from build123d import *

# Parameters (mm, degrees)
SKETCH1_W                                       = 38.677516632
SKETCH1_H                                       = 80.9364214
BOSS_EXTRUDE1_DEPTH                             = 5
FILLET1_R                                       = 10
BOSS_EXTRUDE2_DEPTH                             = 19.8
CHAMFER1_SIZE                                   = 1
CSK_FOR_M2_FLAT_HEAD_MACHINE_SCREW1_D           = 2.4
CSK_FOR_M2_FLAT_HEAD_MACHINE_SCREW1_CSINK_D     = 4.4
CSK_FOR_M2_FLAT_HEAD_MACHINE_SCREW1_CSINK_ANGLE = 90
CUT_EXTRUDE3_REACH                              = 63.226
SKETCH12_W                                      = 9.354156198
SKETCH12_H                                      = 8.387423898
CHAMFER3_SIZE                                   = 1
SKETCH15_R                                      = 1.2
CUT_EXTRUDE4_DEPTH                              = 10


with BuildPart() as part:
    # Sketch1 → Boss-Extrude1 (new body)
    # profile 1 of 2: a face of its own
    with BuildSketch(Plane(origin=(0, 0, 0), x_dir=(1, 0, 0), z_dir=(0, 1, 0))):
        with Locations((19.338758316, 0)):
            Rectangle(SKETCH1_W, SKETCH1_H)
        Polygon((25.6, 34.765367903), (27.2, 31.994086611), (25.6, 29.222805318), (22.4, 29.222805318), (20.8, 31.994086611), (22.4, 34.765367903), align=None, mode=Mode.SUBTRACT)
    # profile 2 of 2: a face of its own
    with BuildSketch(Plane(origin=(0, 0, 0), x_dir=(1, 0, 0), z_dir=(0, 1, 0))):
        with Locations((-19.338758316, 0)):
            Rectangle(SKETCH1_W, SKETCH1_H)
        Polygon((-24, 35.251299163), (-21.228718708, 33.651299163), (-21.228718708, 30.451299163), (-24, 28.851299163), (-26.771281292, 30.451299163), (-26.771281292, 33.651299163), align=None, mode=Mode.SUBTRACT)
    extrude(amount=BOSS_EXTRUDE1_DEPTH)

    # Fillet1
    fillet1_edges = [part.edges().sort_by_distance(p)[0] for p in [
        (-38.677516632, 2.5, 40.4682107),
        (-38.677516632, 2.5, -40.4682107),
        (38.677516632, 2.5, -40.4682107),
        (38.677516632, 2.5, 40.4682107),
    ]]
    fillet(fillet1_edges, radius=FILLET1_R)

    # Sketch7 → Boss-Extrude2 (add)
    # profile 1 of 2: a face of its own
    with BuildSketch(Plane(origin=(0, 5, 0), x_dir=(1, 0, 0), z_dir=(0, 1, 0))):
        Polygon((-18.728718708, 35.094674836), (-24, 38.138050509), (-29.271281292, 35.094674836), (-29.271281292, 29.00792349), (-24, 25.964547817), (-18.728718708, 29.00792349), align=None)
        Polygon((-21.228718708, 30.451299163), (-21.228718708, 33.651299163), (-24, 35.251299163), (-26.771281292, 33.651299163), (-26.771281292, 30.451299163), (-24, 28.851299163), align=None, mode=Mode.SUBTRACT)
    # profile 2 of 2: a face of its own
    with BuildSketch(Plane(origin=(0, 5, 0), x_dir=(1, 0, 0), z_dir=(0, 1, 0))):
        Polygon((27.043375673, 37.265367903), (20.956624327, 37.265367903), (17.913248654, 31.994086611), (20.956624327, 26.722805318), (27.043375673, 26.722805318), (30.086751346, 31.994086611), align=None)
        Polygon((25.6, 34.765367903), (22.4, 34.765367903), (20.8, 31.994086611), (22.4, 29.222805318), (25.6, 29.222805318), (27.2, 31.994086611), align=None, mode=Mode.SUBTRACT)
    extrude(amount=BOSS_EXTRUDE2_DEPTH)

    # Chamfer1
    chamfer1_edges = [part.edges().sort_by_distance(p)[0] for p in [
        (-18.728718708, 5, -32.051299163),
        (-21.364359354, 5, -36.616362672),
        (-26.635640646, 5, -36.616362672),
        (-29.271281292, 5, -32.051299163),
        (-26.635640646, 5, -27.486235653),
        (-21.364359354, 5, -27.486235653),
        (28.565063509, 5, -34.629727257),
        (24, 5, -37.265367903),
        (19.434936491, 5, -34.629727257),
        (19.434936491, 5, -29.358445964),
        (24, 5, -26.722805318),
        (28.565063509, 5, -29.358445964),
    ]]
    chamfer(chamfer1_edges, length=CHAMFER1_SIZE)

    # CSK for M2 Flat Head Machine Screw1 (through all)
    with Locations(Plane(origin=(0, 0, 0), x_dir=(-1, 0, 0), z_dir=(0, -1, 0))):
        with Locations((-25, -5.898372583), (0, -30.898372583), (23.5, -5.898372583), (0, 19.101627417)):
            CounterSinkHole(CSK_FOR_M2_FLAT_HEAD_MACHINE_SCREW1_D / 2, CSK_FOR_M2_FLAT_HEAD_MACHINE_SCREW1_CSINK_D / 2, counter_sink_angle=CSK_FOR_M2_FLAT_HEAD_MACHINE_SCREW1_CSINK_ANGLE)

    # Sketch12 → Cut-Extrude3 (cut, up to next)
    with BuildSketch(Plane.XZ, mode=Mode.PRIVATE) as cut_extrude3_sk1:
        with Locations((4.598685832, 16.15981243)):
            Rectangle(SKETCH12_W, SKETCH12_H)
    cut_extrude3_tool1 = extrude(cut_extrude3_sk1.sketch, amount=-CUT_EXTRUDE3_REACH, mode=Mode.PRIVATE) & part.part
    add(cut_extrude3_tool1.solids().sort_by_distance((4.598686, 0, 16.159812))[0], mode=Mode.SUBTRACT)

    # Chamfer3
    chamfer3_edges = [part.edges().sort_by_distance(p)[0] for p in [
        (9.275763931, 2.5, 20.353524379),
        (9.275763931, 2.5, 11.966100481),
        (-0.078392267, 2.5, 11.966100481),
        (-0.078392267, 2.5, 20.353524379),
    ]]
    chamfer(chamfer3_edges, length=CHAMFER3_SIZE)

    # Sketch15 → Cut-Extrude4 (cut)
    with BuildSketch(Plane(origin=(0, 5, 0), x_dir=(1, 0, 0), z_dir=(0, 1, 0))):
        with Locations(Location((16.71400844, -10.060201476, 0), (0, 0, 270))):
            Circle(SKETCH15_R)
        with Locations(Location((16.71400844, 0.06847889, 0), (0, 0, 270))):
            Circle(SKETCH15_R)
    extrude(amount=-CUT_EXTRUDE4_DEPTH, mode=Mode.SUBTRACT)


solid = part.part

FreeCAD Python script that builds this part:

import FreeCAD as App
import Part
import Sketcher

V = App.Vector
Q = App.Units.Quantity


def edges_at(feature, points):
    """Names of the edges that pass closest to the given points."""
    edges = feature.Shape.Edges
    near = lambda p: min(range(len(edges)), key=lambda i: edges[i].distToShape(Part.Vertex(*p))[0])
    return sorted({f"Edge{near(p) + 1}" for p in points})


def add_polygon(sketch, points):
    """Adds a closed chain of lines whose ends are joined by coincident constraints."""
    first, n = sketch.GeometryCount, len(points)
    for a, b in zip(points, points[1:] + points[:1]):
        sketch.addGeometry(Part.LineSegment(App.Vector(*a, 0), App.Vector(*b, 0)), False)
    for i in range(n):
        sketch.addConstraint(Sketcher.Constraint("Coincident", first + i, 2, first + (i + 1) % n, 1))

doc = App.newDocument("Part")
body = doc.addObject("PartDesign::Body", "Body")

# Sketch on XZ plane
sketch1 = body.newObject("Sketcher::SketchObject", "Sketch")
sketch1.AttachmentSupport = (doc.getObject("XZ_Plane"), [""])
sketch1.MapMode = "FlatFace"
add_polygon(sketch1, [(38.7, 40.5), (38.7, -40.5), (-38.7, -40.5), (-38.7, 40.5)])  # lines 0-3
add_polygon(sketch1, [(22.4, -34.8), (25.6, -34.8), (27.2, -32), (25.6, -29.2), (22.4, -29.2), (20.8, -32)])  # lines 4-9
add_polygon(sketch1, [(-24, -35.3), (-21.2, -33.7), (-21.2, -30.5), (-24, -28.9), (-26.8, -30.5), (-26.8, -33.7)])  # lines 10-15
sketch1.addConstraint(Sketcher.Constraint("Vertical", 0))
sketch1.addConstraint(Sketcher.Constraint("Horizontal", 1))
sketch1.addConstraint(Sketcher.Constraint("Vertical", 2))
sketch1.addConstraint(Sketcher.Constraint("Horizontal", 3))
sketch1.addConstraint(Sketcher.Constraint("Horizontal", 4))
sketch1.addConstraint(Sketcher.Constraint("Horizontal", 7))
sketch1.addConstraint(Sketcher.Constraint("Vertical", 11))
sketch1.addConstraint(Sketcher.Constraint("Vertical", 14))
sketch1.addConstraint(Sketcher.Constraint("Symmetric", 0, 2, 2, 2, -1, 1))
sketch1.addConstraint(Sketcher.Constraint("Parallel", 5, 8))
sketch1.addConstraint(Sketcher.Constraint("Parallel", 6, 9))
sketch1.addConstraint(Sketcher.Constraint("Perpendicular", 9, 10))
sketch1.addConstraint(Sketcher.Constraint("Perpendicular", 8, 12))
sketch1.addConstraint(Sketcher.Constraint("Parallel", 10, 13))
sketch1.addConstraint(Sketcher.Constraint("Parallel", 12, 15))
sketch1.addConstraint(Sketcher.Constraint("Horizontal", 5, 2, 8, 2))
sketch1.addConstraint(Sketcher.Constraint("Horizontal", 11, 2, 13, 2))
sketch1.addConstraint(Sketcher.Constraint("Horizontal", 10, 2, 14, 2))
sketch1.addConstraint(Sketcher.Constraint("Vertical", 4, 2, 6, 2))
sketch1.addConstraint(Sketcher.Constraint("Vertical", 7, 2, 9, 2))
sketch1.addConstraint(Sketcher.Constraint("Equal", 7, 11))
sketch1.addConstraint(Sketcher.Constraint("Equal", 9, 10))
sketch1.addConstraint(Sketcher.Constraint("Angle", 5, Q("60 deg")))
sketch1.addConstraint(Sketcher.Constraint("DistanceX", 4, 1, 4, 2, Q("3.2 mm")))
sketch1.addConstraint(Sketcher.Constraint("DistanceX", 12, 2, -1, 1, Q("24 mm")))
sketch1.addConstraint(Sketcher.Constraint("Distance", 5, Q("3.2 mm")))
sketch1.addConstraint(Sketcher.Constraint("DistanceX", -1, 1, 4, 2, Q("25.6 mm")))
sketch1.addConstraint(Sketcher.Constraint("DistanceY", 0, 2, 0, 1, Q("80.936421 mm")))
sketch1.addConstraint(Sketcher.Constraint("DistanceY", 10, 2, -1, 1, Q("33.651299 mm")))
sketch1.addConstraint(Sketcher.Constraint("DistanceX", 1, 2, 1, 1, Q("77.355033 mm")))
sketch1.addConstraint(Sketcher.Constraint("DistanceY", 4, 2, 3, 2, Q("75.233579 mm")))
pad1 = body.newObject("PartDesign::Pad", "Pad")
pad1.Profile = sketch1
pad1.Length = 5
pad1.Reversed = True
doc.recompute()

fillet = body.newObject("PartDesign::Fillet", "Fillet")
fillet.Base = (pad1, edges_at(pad1, [
    (-38.678, 2.5, 40.468),
    (-38.678, 2.5, -40.468),
    (38.678, 2.5, -40.468),
    (38.678, 2.5, 40.468),
]))
fillet.Radius = 10

# Sketch on XZ plane
sketch2 = body.newObject("Sketcher::SketchObject", "Sketch001")
sketch2.AttachmentSupport = (doc.getObject("XZ_Plane"), [""])
sketch2.MapMode = "FlatFace"
sketch2.AttachmentOffset = App.Placement(V(0, 0, -5), App.Rotation())
add_polygon(sketch2, [(-18.7, -35.1), (-24, -38.1), (-29.3, -35.1), (-29.3, -29), (-24, -26), (-18.7, -29)])  # lines 0-5
add_polygon(sketch2, [(-21.2, -33.7), (-21.2, -30.5), (-24, -28.9), (-26.8, -30.5), (-26.8, -33.7), (-24, -35.3)])  # lines 6-11
add_polygon(sketch2, [(27, -37.3), (21, -37.3), (17.9, -32), (21, -26.7), (27, -26.7), (30.1, -32)])  # lines 12-17
add_polygon(sketch2, [(22.4, -34.8), (25.6, -34.8), (27.2, -32), (25.6, -29.2), (22.4, -29.2), (20.8, -32)])  # lines 18-23
sketch2.addConstraint(Sketcher.Constraint("Vertical", 2))
sketch2.addConstraint(Sketcher.Constraint("Vertical", 5))
sketch2.addConstraint(Sketcher.Constraint("Vertical", 6))
sketch2.addConstraint(Sketcher.Constraint("Vertical", 9))
sketch2.addConstraint(Sketcher.Constraint("Horizontal", 12))
sketch2.addConstraint(Sketcher.Constraint("Horizontal", 15))
sketch2.addConstraint(Sketcher.Constraint("Horizontal", 18))
sketch2.addConstraint(Sketcher.Constraint("Horizontal", 21))
sketch2.addConstraint(Sketcher.Constraint("Parallel", 0, 3))
sketch2.addConstraint(Sketcher.Constraint("Parallel", 1, 4))
sketch2.addConstraint(Sketcher.Constraint("Parallel", 4, 7))
sketch2.addConstraint(Sketcher.Constraint("Parallel", 3, 8))
sketch2.addConstraint(Sketcher.Constraint("Parallel", 7, 10))
sketch2.addConstraint(Sketcher.Constraint("Parallel", 8, 11))
sketch2.addConstraint(Sketcher.Constraint("Perpendicular", 11, 13))
sketch2.addConstraint(Sketcher.Constraint("Perpendicular", 10, 14))
sketch2.addConstraint(Sketcher.Constraint("Parallel", 13, 16))
sketch2.addConstraint(Sketcher.Constraint("Parallel", 14, 17))
sketch2.addConstraint(Sketcher.Constraint("Parallel", 17, 19))
sketch2.addConstraint(Sketcher.Constraint("Parallel", 16, 20))
sketch2.addConstraint(Sketcher.Constraint("Parallel", 19, 22))
sketch2.addConstraint(Sketcher.Constraint("Parallel", 20, 23))
sketch2.addConstraint(Sketcher.Constraint("Horizontal", 2, 2, 4, 2))
sketch2.addConstraint(Sketcher.Constraint("Horizontal", 1, 2, 5, 2))
sketch2.addConstraint(Sketcher.Constraint("Horizontal", 6, 2, 8, 2))
sketch2.addConstraint(Sketcher.Constraint("Horizontal", 9, 2, 11, 2))
sketch2.addConstraint(Sketcher.Constraint("Horizontal", 13, 2, 16, 2))
sketch2.addConstraint(Sketcher.Constraint("Horizontal", 16, 2, 19, 2))
sketch2.addConstraint(Sketcher.Constraint("Horizontal", 19, 2, 22, 2))
sketch2.addConstraint(Sketcher.Constraint("Vertical", 0, 2, 3, 2))
sketch2.addConstraint(Sketcher.Constraint("Vertical", 3, 2, 7, 2))
sketch2.addConstraint(Sketcher.Constraint("Vertical", 12, 2, 14, 2))
sketch2.addConstraint(Sketcher.Constraint("Vertical", 18, 2, 20, 2))
sketch2.addConstraint(Sketcher.Constraint("Equal", 15, 2))
sketch2.addConstraint(Sketcher.Constraint("Equal", 21, 6))
sketch2.addConstraint(Sketcher.Constraint("Equal", 4, 13))
sketch2.addConstraint(Sketcher.Constraint("Equal", 11, 19))
sketch2.addConstraint(Sketcher.Constraint("Angle", 0, Q("-150 deg")))
sketch2.addConstraint(Sketcher.Constraint("DistanceX", 18, 1, 18, 2, Q("3.2 mm")))
sketch2.addConstraint(Sketcher.Constraint("DistanceX", 0, 2, -1, 1, Q("24 mm")))
sketch2.addConstraint(Sketcher.Constraint("Distance", 7, Q("3.2 mm")))
sketch2.addConstraint(Sketcher.Constraint("DistanceX", -1, 1, 18, 2, Q("25.6 mm")))
sketch2.addConstraint(Sketcher.Constraint("DistanceX", 6, 2, 4, 2, Q("2.5 mm")))
sketch2.addConstraint(Sketcher.Constraint("DistanceX", 12, 2, 12, 1, Q("6.086751 mm")))
sketch2.addConstraint(Sketcher.Constraint("DistanceY", 6, 2, -1, 1, Q("30.451299 mm")))
sketch2.addConstraint(Sketcher.Constraint("DistanceY", 0, 2, -1, 1, Q("38.138051 mm")))
sketch2.addConstraint(Sketcher.Constraint("DistanceX", -1, 1, 13, 2, Q("17.913249 mm")))
sketch2.addConstraint(Sketcher.Constraint("DistanceY", 12, 2, 11, 2, Q("3.614069 mm")))
pad2 = body.newObject("PartDesign::Pad", "Pad001")
pad2.Profile = sketch2
pad2.Length = 19.8
pad2.Reversed = True
doc.recompute()

chamfer = body.newObject("PartDesign::Chamfer", "Chamfer")
chamfer.Base = (pad2, edges_at(pad2, [
    (-18.729, 5, -32.051),
    (-21.364, 5, -36.616),
    (-26.636, 5, -36.616),
    (-29.271, 5, -32.051),
    (-26.636, 5, -27.486),
    (-21.364, 5, -27.486),
    (28.565, 5, -34.63),
    (24, 5, -37.265),
    (19.435, 5, -34.63),
    (19.435, 5, -29.358),
    (24, 5, -26.723),
    (28.565, 5, -29.358),
]))
chamfer.Size = 1

# Sketch on XZ plane
sketch3 = body.newObject("Sketcher::SketchObject", "Sketch002")
sketch3.AttachmentSupport = (doc.getObject("XZ_Plane"), [""])
sketch3.MapMode = "FlatFace"
sketch3.addGeometry(Part.Circle(V(25, 5.9, 0), V(0, 0, 1), 1.2), False)
sketch3.addGeometry(Part.Circle(V(0, 30.9, 0), V(0, 0, 1), 1.2), False)
sketch3.addGeometry(Part.Circle(V(-23.5, 5.9, 0), V(0, 0, 1), 1.2), False)
sketch3.addGeometry(Part.Circle(V(0, -19.1, 0), V(0, 0, 1), 1.2), False)
sketch3.addConstraint(Sketcher.Constraint("Equal", 0, 1))
sketch3.addConstraint(Sketcher.Constraint("Equal", 1, 2))
sketch3.addConstraint(Sketcher.Constraint("Equal", 2, 3))
sketch3.addConstraint(Sketcher.Constraint("PointOnObject", 1, 3, -2))
sketch3.addConstraint(Sketcher.Constraint("PointOnObject", 3, 3, -2))
sketch3.addConstraint(Sketcher.Constraint("Horizontal", 0, 3, 2, 3))
sketch3.addConstraint(Sketcher.Constraint("Diameter", 0, Q("2.4 mm")))
sketch3.addConstraint(Sketcher.Constraint("DistanceX", -1, 1, 0, 3, Q("25 mm")))
sketch3.addConstraint(Sketcher.Constraint("DistanceY", 0, 3, 1, 3, Q("25 mm")))
sketch3.addConstraint(Sketcher.Constraint("DistanceY", 3, 3, 2, 3, Q("25 mm")))
sketch3.addConstraint(Sketcher.Constraint("DistanceX", 2, 3, -1, 1, Q("23.5 mm")))
sketch3.addConstraint(Sketcher.Constraint("DistanceY", -1, 1, 0, 3, Q("5.898373 mm")))
doc.recompute()
hole = body.newObject("PartDesign::Hole", "Hole")
hole.Profile = sketch3
hole.ThreadType = "None"
hole.Diameter = 2.4
hole.DepthType = "ThroughAll"
hole.HoleCutType = "Countersink"
hole.HoleCutDiameter = 4.4
hole.HoleCutCountersinkAngle = 90

# Sketch on XZ plane
sketch4 = body.newObject("Sketcher::SketchObject", "Sketch003")
sketch4.AttachmentSupport = (doc.getObject("XZ_Plane"), [""])
sketch4.MapMode = "FlatFace"
add_polygon(sketch4, [(0, 20), (0, 12), (9, 12), (9, 20)])  # lines 0-3
sketch4.addConstraint(Sketcher.Constraint("Vertical", 0))
sketch4.addConstraint(Sketcher.Constraint("Horizontal", 1))
sketch4.addConstraint(Sketcher.Constraint("Vertical", 2))
sketch4.addConstraint(Sketcher.Constraint("Horizontal", 3))
sketch4.addConstraint(Sketcher.Constraint("DistanceY", -1, 1, 0, 2, Q("11.9661 mm")))
sketch4.addConstraint(Sketcher.Constraint("DistanceX", 1, 1, 1, 2, Q("9.354156 mm")))
sketch4.addConstraint(Sketcher.Constraint("DistanceY", 0, 2, 0, 1, Q("8.387424 mm")))
sketch4.addConstraint(Sketcher.Constraint("DistanceX", 0, 2, -1, 1, Q("0.078392 mm")))
pocket1 = body.newObject("PartDesign::Pocket", "Pocket")
pocket1.Profile = sketch4
pocket1.Type = "UpToFirst"
doc.recompute()

chamfer2 = body.newObject("PartDesign::Chamfer", "Chamfer001")
chamfer2.Base = (pocket1, edges_at(pocket1, [
    (9.276, 2.5, 20.354),
    (9.276, 2.5, 11.966),
    (-0.078, 2.5, 11.966),
    (-0.078, 2.5, 20.354),
]))
chamfer2.Size = 1

# Sketch on XZ plane
sketch5 = body.newObject("Sketcher::SketchObject", "Sketch004")
sketch5.AttachmentSupport = (doc.getObject("XZ_Plane"), [""])
sketch5.MapMode = "FlatFace"
sketch5.AttachmentOffset = App.Placement(V(0, 0, -5), App.Rotation())
sketch5.addGeometry(Part.Circle(V(16.7, 10.1, 0), V(0, 0, 1), 1.2), False)
sketch5.addGeometry(Part.Circle(V(16.7, -0.1, 0), V(0, 0, 1), 1.2), False)
sketch5.addConstraint(Sketcher.Constraint("Equal", 0, 1))
sketch5.addConstraint(Sketcher.Constraint("Vertical", 0, 3, 1, 3))
sketch5.addConstraint(Sketcher.Constraint("Diameter", 0, Q("2.4 mm")))
sketch5.addConstraint(Sketcher.Constraint("DistanceY", -1, 1, 0, 3, Q("10.060201 mm")))
sketch5.addConstraint(Sketcher.Constraint("DistanceX", -1, 1, 0, 3, Q("16.714008 mm")))
sketch5.addConstraint(Sketcher.Constraint("DistanceY", 1, 3, -1, 1, Q("0.068479 mm")))
pocket2 = body.newObject("PartDesign::Pocket", "Pocket001")
pocket2.Profile = sketch5
pocket2.Length = 10
pocket2.Reversed = True

doc.recompute()
